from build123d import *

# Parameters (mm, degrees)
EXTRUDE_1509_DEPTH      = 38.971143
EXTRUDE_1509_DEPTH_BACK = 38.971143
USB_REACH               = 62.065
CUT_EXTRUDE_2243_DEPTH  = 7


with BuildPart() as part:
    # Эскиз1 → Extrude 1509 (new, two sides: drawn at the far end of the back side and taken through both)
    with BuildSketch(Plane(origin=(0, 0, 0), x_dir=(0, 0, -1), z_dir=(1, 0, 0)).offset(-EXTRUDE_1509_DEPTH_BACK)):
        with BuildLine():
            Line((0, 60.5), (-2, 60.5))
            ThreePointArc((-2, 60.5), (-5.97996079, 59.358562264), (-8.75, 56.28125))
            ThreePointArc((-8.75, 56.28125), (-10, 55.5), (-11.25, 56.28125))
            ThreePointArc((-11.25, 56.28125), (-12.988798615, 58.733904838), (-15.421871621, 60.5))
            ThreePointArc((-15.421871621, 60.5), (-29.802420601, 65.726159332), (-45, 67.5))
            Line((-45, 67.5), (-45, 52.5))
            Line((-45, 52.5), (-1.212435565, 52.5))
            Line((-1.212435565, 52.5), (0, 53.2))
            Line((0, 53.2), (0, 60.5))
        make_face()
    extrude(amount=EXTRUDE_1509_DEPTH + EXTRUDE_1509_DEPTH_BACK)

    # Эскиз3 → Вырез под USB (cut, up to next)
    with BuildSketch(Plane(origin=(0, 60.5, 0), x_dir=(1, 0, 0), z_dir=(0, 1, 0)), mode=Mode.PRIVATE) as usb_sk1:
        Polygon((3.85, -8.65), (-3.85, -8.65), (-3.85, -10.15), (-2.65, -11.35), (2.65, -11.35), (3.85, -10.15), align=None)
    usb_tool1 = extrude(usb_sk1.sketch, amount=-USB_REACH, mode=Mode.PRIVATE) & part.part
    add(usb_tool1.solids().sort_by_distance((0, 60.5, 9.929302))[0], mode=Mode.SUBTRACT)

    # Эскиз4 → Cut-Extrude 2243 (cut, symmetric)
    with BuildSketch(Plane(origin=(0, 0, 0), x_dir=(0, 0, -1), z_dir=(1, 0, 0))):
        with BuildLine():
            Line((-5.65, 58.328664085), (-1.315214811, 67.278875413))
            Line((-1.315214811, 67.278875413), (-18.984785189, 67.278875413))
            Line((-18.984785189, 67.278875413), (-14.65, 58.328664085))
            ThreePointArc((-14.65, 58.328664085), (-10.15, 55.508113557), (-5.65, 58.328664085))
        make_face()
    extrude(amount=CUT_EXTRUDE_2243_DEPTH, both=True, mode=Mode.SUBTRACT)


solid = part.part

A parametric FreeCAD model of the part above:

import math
import FreeCAD as App
import Part
import Sketcher

V = App.Vector
Q = App.Units.Quantity

doc = App.newDocument("Part")
body = doc.addObject("PartDesign::Body", "Body")

# Sketch on YZ plane
sketch1 = doc.addObject("Sketcher::SketchObject", "Sketch")
body.addObject(sketch1)
sketch1.AttachmentSupport = (doc.YZ_Plane, [""])
sketch1.MapMode = "FlatFace"
sketch1.addGeometry(Part.LineSegment(V(60.5, 0, 0), V(60.5, 2, 0)), False)
sketch1.addGeometry(Part.ArcOfCircle(Part.Circle(V(53, 2, 0), V(0, 0, 1), 7.5), math.radians(0), math.radians(64)), False)
sketch1.addGeometry(Part.ArcOfCircle(Part.Circle(V(56.9, 10, 0), V(0, 0, 1), 1.4), math.radians(116), math.radians(244)), False)
sketch1.addGeometry(Part.ArcOfCircle(Part.Circle(V(52.2, 19.6, 0), V(0, 0, 1), 9.3), math.radians(-64), math.radians(-27)), False)
sketch1.addGeometry(Part.ArcOfCircle(Part.Circle(V(1.5, 45, 0), V(0, 0, 1), 66), math.radians(-27), math.radians(0)), False)
sketch1.addGeometry(Part.LineSegment(V(67.5, 45, 0), V(52.5, 45, 0)), False)
sketch1.addGeometry(Part.LineSegment(V(52.5, 45, 0), V(52.5, 1.2, 0)), False)
sketch1.addGeometry(Part.LineSegment(V(52.5, 1.2, 0), V(53.2, 0, 0)), False)
sketch1.addGeometry(Part.LineSegment(V(53.2, 0, 0), V(60.5, 0, 0)), False)
sketch1.addConstraint(Sketcher.Constraint("Tangent", 0, 2, 1, 1))
sketch1.addConstraint(Sketcher.Constraint("Tangent", 1, 2, 2, 2))
sketch1.addConstraint(Sketcher.Constraint("Tangent", 2, 1, 3, 1))
sketch1.addConstraint(Sketcher.Constraint("Tangent", 3, 2, 4, 1))
sketch1.addConstraint(Sketcher.Constraint("Coincident", 4, 2, 5, 1))
sketch1.addConstraint(Sketcher.Constraint("Coincident", 5, 2, 6, 1))
sketch1.addConstraint(Sketcher.Constraint("Coincident", 6, 2, 7, 1))
sketch1.addConstraint(Sketcher.Constraint("Coincident", 7, 2, 8, 1))
sketch1.addConstraint(Sketcher.Constraint("Coincident", 8, 2, 0, 1))
sketch1.addConstraint(Sketcher.Constraint("Vertical", 0))
sketch1.addConstraint(Sketcher.Constraint("Horizontal", 5))
sketch1.addConstraint(Sketcher.Constraint("Vertical", 6))
sketch1.addConstraint(Sketcher.Constraint("Horizontal", 8))
sketch1.addConstraint(Sketcher.Constraint("PointOnObject", 7, 2, -1))
sketch1.addConstraint(Sketcher.Constraint("Vertical", 1, 2, 2, 1))
sketch1.addConstraint(Sketcher.Constraint("Vertical", 0, 2, 3, 2))
sketch1.addConstraint(Sketcher.Constraint("DistanceX", 5, 2, 5, 1, 15.0))
sketch1.addConstraint(Sketcher.Constraint("DistanceY", 0, 1, 0, 2, 2.0))
sketch1.addConstraint(Sketcher.Constraint("Angle", 7, Q("-60 deg")))
sketch1.addConstraint(Sketcher.Constraint("DistanceX", 8, 1, 8, 2, 7.3))
sketch1.addConstraint(Sketcher.Constraint("DistanceY", -1, 1, 2, 3, 10.0))
sketch1.addConstraint(Sketcher.Constraint("DistanceY", -1, 1, 4, 3, 45.0))
sketch1.addConstraint(Sketcher.Constraint("DistanceY", -1, 1, 4, 2, 45.0))
sketch1.addConstraint(Sketcher.Constraint("DistanceX", 3, 2, 4, 2, 7.0))
sketch1.addConstraint(Sketcher.Constraint("DistanceX", -1, 1, 0, 2, 60.5))
sketch1.addConstraint(Sketcher.Constraint("DistanceX", 1, 3, 2, 3, 3.9))
sketch1.addConstraint(Sketcher.Constraint("DistanceY", 1, 2, 2, 1, 2.5))
pad1 = doc.addObject("PartDesign::Pad", "Pad")
body.addObject(pad1)
pad1.Profile = sketch1
pad1.Type = "TwoLengths"
pad1.Length = 38.971143
pad1.Length2 = 38.971143

# Sketch on XZ plane
sketch2 = doc.addObject("Sketcher::SketchObject", "Sketch001")
body.addObject(sketch2)
sketch2.AttachmentSupport = (doc.XZ_Plane, [""])
sketch2.MapMode = "FlatFace"
sketch2.AttachmentOffset = App.Placement(V(0, 0, -60.5), App.Rotation())
sketch2.addGeometry(Part.LineSegment(V(3.9, 8.7, 0), V(-3.9, 8.7, 0)), False)
sketch2.addGeometry(Part.LineSegment(V(-3.9, 8.7, 0), V(-3.9, 10.2, 0)), False)
sketch2.addGeometry(Part.LineSegment(V(-3.9, 10.2, 0), V(-2.6, 11.3, 0)), False)
sketch2.addGeometry(Part.LineSegment(V(-2.6, 11.3, 0), V(2.6, 11.3, 0)), False)
sketch2.addGeometry(Part.LineSegment(V(2.6, 11.3, 0), V(3.9, 10.2, 0)), False)
sketch2.addGeometry(Part.LineSegment(V(3.9, 10.2, 0), V(3.9, 8.7, 0)), False)
sketch2.addConstraint(Sketcher.Constraint("Coincident", 0, 2, 1, 1))
sketch2.addConstraint(Sketcher.Constraint("Coincident", 1, 2, 2, 1))
sketch2.addConstraint(Sketcher.Constraint("Coincident", 2, 2, 3, 1))
sketch2.addConstraint(Sketcher.Constraint("Coincident", 3, 2, 4, 1))
sketch2.addConstraint(Sketcher.Constraint("Coincident", 4, 2, 5, 1))
sketch2.addConstraint(Sketcher.Constraint("Coincident", 5, 2, 0, 1))
sketch2.addConstraint(Sketcher.Constraint("Horizontal", 0))
sketch2.addConstraint(Sketcher.Constraint("Vertical", 1))
sketch2.addConstraint(Sketcher.Constraint("Horizontal", 3))
sketch2.addConstraint(Sketcher.Constraint("Vertical", 5))
sketch2.addConstraint(Sketcher.Constraint("Symmetric", 1, 2, 4, 2, -2))
sketch2.addConstraint(Sketcher.Constraint("Perpendicular", 2, 4))
sketch2.addConstraint(Sketcher.Constraint("Equal", 2, 4))
sketch2.addConstraint(Sketcher.Constraint("DistanceX", 0, 2, 0, 1, 7.7))
sketch2.addConstraint(Sketcher.Constraint("DistanceX", 3, 1, 3, 2, 5.3))
sketch2.addConstraint(Sketcher.Constraint("DistanceY", 1, 1, 1, 2, 1.5))
sketch2.addConstraint(Sketcher.Constraint("DistanceY", -1, 1, 0, 2, 8.65))
pocket1 = doc.addObject("PartDesign::Pocket", "Pocket")
body.addObject(pocket1)
pocket1.Profile = sketch2
pocket1.Length = 8
pocket1.Reversed = True

# Sketch on YZ plane
sketch3 = doc.addObject("Sketcher::SketchObject", "Sketch002")
body.addObject(sketch3)
sketch3.AttachmentSupport = (doc.YZ_Plane, [""])
sketch3.MapMode = "FlatFace"
sketch3.addGeometry(Part.LineSegment(V(58, 6, 0), V(67, 1, 0)), False)
sketch3.addGeometry(Part.LineSegment(V(67, 1, 0), V(67, 19, 0)), False)
sketch3.addGeometry(Part.LineSegment(V(67, 19, 0), V(58, 15, 0)), False)
sketch3.addGeometry(Part.ArcOfCircle(Part.Circle(V(61, 10, 0), V(0, 0, 1), 5), math.radians(116), math.radians(244)), False)
sketch3.addConstraint(Sketcher.Constraint("Coincident", 0, 2, 1, 1))
sketch3.addConstraint(Sketcher.Constraint("Coincident", 1, 2, 2, 1))
sketch3.addConstraint(Sketcher.Constraint("Tangent", 2, 2, 3, 1))
sketch3.addConstraint(Sketcher.Constraint("Tangent", 3, 2, 0, 1))
sketch3.addConstraint(Sketcher.Constraint("Vertical", 1))
sketch3.addConstraint(Sketcher.Constraint("Vertical", 2, 2, 3, 2))
sketch3.addConstraint(Sketcher.Constraint("Radius", 3, 5.0))
sketch3.addConstraint(Sketcher.Constraint("DistanceY", 3, 2, 2, 2, 9.0))
sketch3.addConstraint(Sketcher.Constraint("DistanceY", -1, 1, 3, 3, 10.15))
sketch3.addConstraint(Sketcher.Constraint("DistanceY", 1, 1, 1, 2, 17.66957))
sketch3.addConstraint(Sketcher.Constraint("DistanceX", -1, 1, 3, 3, 60.508114))
pocket2 = doc.addObject("PartDesign::Pocket", "Pocket001")
body.addObject(pocket2)
pocket2.Profile = sketch3
pocket2.Length = 14
pocket2.Midplane = True

doc.recompute()
